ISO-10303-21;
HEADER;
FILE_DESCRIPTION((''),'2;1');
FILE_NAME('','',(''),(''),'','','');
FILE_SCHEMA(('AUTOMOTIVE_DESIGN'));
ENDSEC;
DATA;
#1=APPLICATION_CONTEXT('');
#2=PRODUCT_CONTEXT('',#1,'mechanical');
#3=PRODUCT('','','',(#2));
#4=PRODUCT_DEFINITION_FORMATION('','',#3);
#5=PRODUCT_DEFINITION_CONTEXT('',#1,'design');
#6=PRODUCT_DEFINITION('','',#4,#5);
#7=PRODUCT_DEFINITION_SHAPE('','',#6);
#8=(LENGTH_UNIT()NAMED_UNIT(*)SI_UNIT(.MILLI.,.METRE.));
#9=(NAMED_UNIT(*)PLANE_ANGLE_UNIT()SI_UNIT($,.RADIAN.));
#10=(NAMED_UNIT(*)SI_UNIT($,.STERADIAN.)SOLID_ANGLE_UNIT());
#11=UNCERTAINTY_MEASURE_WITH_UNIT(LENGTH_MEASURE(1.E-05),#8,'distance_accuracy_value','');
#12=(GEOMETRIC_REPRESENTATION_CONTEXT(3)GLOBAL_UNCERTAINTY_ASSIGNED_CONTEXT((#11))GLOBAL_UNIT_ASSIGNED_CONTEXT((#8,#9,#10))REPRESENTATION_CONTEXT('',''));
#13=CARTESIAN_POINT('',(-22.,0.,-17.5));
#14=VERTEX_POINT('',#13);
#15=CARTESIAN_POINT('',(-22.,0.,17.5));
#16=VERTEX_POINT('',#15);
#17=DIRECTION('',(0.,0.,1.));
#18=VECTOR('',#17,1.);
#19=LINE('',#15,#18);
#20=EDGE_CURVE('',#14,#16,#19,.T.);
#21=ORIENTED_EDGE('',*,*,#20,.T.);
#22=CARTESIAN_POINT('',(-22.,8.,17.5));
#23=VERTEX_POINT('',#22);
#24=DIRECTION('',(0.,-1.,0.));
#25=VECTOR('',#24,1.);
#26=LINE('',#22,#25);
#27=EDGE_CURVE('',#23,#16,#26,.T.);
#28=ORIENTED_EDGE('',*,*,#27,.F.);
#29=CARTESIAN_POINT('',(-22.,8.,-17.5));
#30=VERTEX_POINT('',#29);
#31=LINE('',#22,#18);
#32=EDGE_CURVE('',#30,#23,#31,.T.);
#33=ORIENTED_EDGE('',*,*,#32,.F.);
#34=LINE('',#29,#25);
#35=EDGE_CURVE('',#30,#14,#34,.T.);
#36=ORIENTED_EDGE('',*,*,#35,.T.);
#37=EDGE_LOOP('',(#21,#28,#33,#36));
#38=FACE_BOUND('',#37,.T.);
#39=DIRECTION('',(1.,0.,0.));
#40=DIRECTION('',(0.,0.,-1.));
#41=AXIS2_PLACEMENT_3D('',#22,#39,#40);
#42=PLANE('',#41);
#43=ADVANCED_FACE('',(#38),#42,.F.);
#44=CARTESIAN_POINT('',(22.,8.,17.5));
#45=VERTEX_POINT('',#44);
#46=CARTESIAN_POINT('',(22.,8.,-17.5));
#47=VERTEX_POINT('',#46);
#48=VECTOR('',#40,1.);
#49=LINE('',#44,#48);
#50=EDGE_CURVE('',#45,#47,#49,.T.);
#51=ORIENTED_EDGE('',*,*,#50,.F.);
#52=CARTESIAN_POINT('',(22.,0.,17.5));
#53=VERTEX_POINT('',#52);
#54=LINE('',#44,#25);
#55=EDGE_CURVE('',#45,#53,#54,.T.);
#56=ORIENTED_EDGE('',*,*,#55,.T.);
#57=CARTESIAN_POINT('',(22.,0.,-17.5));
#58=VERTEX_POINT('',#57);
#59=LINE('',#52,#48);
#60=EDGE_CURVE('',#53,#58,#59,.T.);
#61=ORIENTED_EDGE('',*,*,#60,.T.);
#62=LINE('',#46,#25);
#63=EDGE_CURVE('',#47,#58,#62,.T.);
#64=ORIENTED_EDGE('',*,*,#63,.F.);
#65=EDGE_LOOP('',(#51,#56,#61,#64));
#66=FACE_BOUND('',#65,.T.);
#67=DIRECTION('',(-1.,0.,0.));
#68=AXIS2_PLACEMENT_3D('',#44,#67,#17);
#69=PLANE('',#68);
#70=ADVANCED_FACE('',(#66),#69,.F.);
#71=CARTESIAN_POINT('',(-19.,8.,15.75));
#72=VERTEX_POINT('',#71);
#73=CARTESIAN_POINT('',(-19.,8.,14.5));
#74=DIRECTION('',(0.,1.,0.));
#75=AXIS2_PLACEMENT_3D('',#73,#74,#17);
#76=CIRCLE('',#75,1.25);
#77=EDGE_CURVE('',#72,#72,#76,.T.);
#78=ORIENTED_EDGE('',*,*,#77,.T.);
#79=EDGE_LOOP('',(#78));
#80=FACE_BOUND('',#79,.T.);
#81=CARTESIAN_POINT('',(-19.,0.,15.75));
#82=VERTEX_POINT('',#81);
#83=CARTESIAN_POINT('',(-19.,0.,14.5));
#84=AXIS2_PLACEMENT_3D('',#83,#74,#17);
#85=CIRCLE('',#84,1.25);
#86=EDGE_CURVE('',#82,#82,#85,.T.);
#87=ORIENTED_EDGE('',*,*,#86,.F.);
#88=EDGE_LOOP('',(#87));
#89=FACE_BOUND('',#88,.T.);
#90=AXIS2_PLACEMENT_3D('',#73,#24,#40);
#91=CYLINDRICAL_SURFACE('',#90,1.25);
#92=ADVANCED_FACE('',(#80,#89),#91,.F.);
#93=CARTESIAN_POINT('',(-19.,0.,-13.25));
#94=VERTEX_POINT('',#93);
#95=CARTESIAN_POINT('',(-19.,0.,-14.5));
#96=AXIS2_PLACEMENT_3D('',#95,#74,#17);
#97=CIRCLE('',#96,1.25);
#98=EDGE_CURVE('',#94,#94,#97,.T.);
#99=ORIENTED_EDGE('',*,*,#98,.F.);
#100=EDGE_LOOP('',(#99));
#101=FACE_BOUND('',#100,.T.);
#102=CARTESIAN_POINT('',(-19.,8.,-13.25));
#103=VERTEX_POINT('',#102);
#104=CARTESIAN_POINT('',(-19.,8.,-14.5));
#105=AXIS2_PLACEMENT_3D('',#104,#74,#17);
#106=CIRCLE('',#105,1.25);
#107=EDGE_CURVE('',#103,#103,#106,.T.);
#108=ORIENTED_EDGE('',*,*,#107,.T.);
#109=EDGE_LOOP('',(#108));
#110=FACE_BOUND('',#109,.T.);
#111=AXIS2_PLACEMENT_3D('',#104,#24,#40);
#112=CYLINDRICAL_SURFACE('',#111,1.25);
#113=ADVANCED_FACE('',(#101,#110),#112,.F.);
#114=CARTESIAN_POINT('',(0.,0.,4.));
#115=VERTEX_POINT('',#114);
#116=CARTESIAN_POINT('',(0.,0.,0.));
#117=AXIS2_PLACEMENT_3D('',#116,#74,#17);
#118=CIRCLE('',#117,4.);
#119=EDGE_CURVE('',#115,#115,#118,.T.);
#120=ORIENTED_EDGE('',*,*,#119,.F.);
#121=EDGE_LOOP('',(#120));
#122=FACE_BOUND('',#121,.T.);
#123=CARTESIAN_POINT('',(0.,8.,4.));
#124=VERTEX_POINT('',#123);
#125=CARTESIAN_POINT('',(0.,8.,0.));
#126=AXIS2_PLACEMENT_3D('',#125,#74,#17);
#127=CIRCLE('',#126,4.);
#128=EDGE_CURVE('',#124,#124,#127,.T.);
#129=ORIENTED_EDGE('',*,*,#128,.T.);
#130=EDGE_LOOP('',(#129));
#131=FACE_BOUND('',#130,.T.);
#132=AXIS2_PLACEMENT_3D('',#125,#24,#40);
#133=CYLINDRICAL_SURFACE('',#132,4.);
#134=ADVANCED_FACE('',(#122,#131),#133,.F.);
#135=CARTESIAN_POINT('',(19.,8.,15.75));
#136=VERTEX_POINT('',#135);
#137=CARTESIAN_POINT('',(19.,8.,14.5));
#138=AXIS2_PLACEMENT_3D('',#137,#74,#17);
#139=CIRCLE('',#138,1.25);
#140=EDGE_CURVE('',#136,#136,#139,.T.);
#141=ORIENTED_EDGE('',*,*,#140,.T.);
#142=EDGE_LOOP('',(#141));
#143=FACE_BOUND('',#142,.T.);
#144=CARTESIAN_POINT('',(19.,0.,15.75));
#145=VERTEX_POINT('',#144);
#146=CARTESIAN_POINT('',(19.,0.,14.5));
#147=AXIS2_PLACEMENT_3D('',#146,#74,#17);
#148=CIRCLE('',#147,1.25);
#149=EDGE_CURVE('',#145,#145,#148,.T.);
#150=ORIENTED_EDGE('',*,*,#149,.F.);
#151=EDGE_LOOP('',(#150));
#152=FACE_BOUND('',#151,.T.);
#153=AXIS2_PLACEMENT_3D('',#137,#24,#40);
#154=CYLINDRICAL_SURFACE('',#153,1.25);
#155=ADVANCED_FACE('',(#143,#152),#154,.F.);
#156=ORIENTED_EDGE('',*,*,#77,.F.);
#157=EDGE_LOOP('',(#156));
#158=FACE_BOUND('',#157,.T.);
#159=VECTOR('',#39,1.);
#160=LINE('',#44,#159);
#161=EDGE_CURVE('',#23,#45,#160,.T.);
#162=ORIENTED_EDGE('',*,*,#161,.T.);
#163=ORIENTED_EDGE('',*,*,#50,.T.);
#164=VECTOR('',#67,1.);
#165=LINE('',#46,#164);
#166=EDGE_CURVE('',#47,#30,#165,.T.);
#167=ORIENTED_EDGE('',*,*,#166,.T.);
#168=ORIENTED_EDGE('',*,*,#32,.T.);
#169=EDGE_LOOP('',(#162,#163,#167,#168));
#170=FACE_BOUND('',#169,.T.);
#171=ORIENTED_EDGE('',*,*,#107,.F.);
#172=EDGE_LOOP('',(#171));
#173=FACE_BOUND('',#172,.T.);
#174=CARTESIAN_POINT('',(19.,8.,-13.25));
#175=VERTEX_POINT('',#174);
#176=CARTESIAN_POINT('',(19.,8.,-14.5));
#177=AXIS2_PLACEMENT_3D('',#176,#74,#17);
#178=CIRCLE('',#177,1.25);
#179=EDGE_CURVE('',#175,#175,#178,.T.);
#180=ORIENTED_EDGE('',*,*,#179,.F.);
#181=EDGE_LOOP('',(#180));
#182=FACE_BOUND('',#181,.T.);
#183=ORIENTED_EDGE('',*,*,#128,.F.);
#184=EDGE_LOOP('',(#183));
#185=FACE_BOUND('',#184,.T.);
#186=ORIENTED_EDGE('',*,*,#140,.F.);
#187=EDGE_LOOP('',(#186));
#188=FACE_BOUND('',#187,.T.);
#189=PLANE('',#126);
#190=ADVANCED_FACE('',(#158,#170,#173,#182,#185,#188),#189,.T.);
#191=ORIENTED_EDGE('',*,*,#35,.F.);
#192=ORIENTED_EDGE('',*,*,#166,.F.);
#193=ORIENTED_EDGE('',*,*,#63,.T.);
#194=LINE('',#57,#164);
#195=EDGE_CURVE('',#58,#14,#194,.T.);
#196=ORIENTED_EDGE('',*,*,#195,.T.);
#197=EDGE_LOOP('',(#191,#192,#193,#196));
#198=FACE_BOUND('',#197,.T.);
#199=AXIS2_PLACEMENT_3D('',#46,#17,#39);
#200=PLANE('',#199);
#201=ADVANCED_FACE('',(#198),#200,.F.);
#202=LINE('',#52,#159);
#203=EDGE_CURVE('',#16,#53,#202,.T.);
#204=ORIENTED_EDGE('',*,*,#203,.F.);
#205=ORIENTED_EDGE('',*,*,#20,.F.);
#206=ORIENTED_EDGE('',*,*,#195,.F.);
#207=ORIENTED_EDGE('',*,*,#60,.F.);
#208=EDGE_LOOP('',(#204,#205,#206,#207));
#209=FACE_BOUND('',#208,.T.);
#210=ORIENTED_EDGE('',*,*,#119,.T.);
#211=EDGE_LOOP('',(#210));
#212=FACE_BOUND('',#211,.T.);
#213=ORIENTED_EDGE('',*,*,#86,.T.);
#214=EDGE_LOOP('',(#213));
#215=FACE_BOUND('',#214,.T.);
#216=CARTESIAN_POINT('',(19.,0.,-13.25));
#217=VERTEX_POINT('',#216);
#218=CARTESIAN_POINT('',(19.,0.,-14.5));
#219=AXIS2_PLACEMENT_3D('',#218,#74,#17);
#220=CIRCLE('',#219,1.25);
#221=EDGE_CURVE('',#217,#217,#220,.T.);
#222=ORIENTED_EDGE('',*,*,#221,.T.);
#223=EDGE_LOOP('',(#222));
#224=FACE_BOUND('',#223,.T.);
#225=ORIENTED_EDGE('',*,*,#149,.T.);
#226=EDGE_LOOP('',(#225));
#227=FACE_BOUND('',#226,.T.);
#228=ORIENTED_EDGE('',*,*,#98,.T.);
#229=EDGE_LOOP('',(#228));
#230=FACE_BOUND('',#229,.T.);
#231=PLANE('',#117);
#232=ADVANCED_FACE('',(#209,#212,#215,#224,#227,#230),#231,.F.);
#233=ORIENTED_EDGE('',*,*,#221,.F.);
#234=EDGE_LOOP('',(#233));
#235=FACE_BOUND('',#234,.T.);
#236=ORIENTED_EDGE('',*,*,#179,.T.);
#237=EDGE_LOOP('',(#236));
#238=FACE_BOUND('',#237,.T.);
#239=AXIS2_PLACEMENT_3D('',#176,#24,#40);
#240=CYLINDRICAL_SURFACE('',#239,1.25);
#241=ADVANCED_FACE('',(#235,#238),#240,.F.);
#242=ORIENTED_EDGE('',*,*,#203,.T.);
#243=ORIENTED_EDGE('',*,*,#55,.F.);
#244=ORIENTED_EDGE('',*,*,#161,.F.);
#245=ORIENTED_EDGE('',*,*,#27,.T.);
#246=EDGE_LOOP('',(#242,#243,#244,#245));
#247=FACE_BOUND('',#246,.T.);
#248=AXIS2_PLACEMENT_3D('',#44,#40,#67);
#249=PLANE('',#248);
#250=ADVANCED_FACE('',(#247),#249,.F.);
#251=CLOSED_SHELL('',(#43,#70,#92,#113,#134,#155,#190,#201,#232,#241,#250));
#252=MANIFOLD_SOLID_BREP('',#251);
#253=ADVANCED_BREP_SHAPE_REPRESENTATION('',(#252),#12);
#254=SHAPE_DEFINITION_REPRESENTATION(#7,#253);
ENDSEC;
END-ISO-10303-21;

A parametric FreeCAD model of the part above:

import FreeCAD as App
import Part
import Sketcher
from FreeCAD import Vector


def add_polygon(sketch, points):
    """Adds a closed chain of lines whose ends are joined by coincident constraints."""
    first, n = sketch.GeometryCount, len(points)
    for a, b in zip(points, points[1:] + points[:1]):
        sketch.addGeometry(Part.LineSegment(App.Vector(*a, 0), App.Vector(*b, 0)), False)
    for i in range(n):
        sketch.addConstraint(Sketcher.Constraint("Coincident", first + i, 2, first + (i + 1) % n, 1))

doc = App.newDocument("Part")
body = doc.addObject("PartDesign::Body", "Body")

# Sketch on XZ plane
sketch1 = doc.addObject("Sketcher::SketchObject", "Sketch")
body.addObject(sketch1)
sketch1.AttachmentSupport = (doc.XZ_Plane, [""])
sketch1.MapMode = "FlatFace"
add_polygon(sketch1, [(22, 17.5), (22, -17.5), (-22, -17.5), (-22, 17.5)])  # lines 0-3
sketch1.addGeometry(Part.Circle(Vector(19, -14.5, 0), Vector(0, 0, 1), 1.2), False)  # 4
sketch1.addGeometry(Part.Circle(Vector(-19, -14.5, 0), Vector(0, 0, 1), 1.2), False)  # 5
sketch1.addGeometry(Part.Circle(Vector(19, 14.5, 0), Vector(0, 0, 1), 1.2), False)  # 6
sketch1.addGeometry(Part.Circle(Vector(-19, 14.5, 0), Vector(0, 0, 1), 1.2), False)  # 7
sketch1.addConstraint(Sketcher.Constraint("Vertical", 0))
sketch1.addConstraint(Sketcher.Constraint("Horizontal", 1))
sketch1.addConstraint(Sketcher.Constraint("Vertical", 2))
sketch1.addConstraint(Sketcher.Constraint("Horizontal", 3))
sketch1.addConstraint(Sketcher.Constraint("Equal", 4, 5))
sketch1.addConstraint(Sketcher.Constraint("Equal", 5, 6))
sketch1.addConstraint(Sketcher.Constraint("Equal", 6, 7))
sketch1.addConstraint(Sketcher.Constraint("Symmetric", 5, 3, 6, 3, -1, 1))
sketch1.addConstraint(Sketcher.Constraint("Symmetric", 4, 3, 7, 3, -1, 1))
sketch1.addConstraint(Sketcher.Constraint("Symmetric", 0, 2, 2, 2, -1, 1))
sketch1.addConstraint(Sketcher.Constraint("Symmetric", 4, 3, 5, 3, -2))
sketch1.addConstraint(Sketcher.Constraint("Diameter", 4, 2.5))
sketch1.addConstraint(Sketcher.Constraint("DistanceX", 1, 2, 1, 1, 44.0))
sketch1.addConstraint(Sketcher.Constraint("DistanceY", 0, 2, 0, 1, 35.0))
sketch1.addConstraint(Sketcher.Constraint("DistanceX", -1, 1, 4, 3, 19.0))
sketch1.addConstraint(Sketcher.Constraint("DistanceY", 4, 3, 6, 3, 29.0))
pad1 = doc.addObject("PartDesign::Pad", "Pad")
body.addObject(pad1)
pad1.Profile = sketch1
pad1.Length = 8
pad1.Reversed = True

# Sketch on XZ plane
sketch2 = doc.addObject("Sketcher::SketchObject", "Sketch001")
body.addObject(sketch2)
sketch2.AttachmentSupport = (doc.XZ_Plane, [""])
sketch2.MapMode = "FlatFace"
sketch2.addGeometry(Part.Circle(Vector(0, 0, 0), Vector(0, 0, 1), 4), False)
sketch2.addConstraint(Sketcher.Constraint("Coincident", 0, 3, -1, 1))
sketch2.addConstraint(Sketcher.Constraint("Diameter", 0, 8.0))
pocket1 = doc.addObject("PartDesign::Pocket", "Pocket")
body.addObject(pocket1)
pocket1.Profile = sketch2
pocket1.Type = "ThroughAll"

doc.recompute()
